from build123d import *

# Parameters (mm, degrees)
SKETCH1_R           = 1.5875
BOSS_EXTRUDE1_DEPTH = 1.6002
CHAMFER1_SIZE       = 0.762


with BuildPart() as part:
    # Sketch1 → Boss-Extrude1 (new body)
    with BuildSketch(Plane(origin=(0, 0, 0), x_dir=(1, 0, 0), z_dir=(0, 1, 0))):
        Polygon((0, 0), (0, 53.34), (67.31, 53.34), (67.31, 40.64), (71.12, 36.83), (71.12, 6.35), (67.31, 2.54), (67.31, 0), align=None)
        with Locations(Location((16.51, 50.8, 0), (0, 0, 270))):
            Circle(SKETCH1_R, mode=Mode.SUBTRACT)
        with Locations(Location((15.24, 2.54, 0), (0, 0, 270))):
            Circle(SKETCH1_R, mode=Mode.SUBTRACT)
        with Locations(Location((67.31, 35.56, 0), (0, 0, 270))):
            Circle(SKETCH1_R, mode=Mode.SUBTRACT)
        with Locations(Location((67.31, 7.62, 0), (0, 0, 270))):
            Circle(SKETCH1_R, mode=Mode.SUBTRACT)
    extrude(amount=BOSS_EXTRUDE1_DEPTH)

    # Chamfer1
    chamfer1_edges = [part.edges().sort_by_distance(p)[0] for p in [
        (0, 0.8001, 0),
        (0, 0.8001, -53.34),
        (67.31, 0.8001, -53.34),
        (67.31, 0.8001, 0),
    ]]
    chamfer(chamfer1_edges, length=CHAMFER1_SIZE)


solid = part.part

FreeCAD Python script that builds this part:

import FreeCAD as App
import Part
import Sketcher
from FreeCAD import Vector
Q = App.Units.Quantity


def edges_at(feature, points):
    """Names of the edges that pass closest to the given points."""
    edges = feature.Shape.Edges
    near = lambda p: min(range(len(edges)), key=lambda i: edges[i].distToShape(Part.Vertex(*p))[0])
    return sorted({f"Edge{near(p) + 1}" for p in points})


def add_polygon(sketch, points):
    """Adds a closed chain of lines whose ends are joined by coincident constraints."""
    first, n = sketch.GeometryCount, len(points)
    for a, b in zip(points, points[1:] + points[:1]):
        sketch.addGeometry(Part.LineSegment(App.Vector(*a, 0), App.Vector(*b, 0)), False)
    for i in range(n):
        sketch.addConstraint(Sketcher.Constraint("Coincident", first + i, 2, first + (i + 1) % n, 1))

doc = App.newDocument("Part")
params = doc.addObject("Spreadsheet::Sheet", "Params")
for row, (alias, value) in enumerate([
    ("sketch1_diameter", "0.125 in"),
    ("sketch1_height", "2.1 in"),
    ("sketch1_height2", "0.1 in"),
    ("sketch1_height3", "1.2 in"),
    ("sketch1_height4", "0.5 in"),
    ("pad1_length", "0.063 in"),
    ("chamfer_size", "0.03 in"),
], start=1):
    params.set(f"A{row}", alias)
    params.set(f"B{row}", "=" + value)
    params.setAlias(f"B{row}", alias)

body = doc.addObject("PartDesign::Body", "Body")

# Sketch on XZ plane
sketch1 = doc.addObject("Sketcher::SketchObject", "Sketch")
body.addObject(sketch1)
sketch1.AttachmentSupport = (doc.XZ_Plane, [""])
sketch1.MapMode = "FlatFace"
add_polygon(sketch1, [(0, -53.34), (0, 0), (67.31, 0), (67.31, -2.54), (71.12, -6.35), (71.12, -36.83), (67.31, -40.64), (67.31, -53.34)])  # lines 0-7
sketch1.addGeometry(Part.Circle(Vector(67.31, -7.62, 0), Vector(0, 0, 1), 1.5875), False)  # 8
sketch1.addGeometry(Part.Circle(Vector(15.24, -2.54, 0), Vector(0, 0, 1), 1.5875), False)  # 9
sketch1.addGeometry(Part.Circle(Vector(67.31, -35.56, 0), Vector(0, 0, 1), 1.5875), False)  # 10
sketch1.addGeometry(Part.Circle(Vector(16.51, -50.8, 0), Vector(0, 0, 1), 1.5875), False)  # 11
sketch1.addConstraint([
    Sketcher.Constraint("Vertical", 0),
    Sketcher.Constraint("Horizontal", 1),
    Sketcher.Constraint("Vertical", 2),
    Sketcher.Constraint("Vertical", 4),
    Sketcher.Constraint("Vertical", 6),
    Sketcher.Constraint("Horizontal", 7),
    Sketcher.Constraint("Coincident", 0, 2, -1, 1),
    Sketcher.Constraint("Equal", 8, 9),
    Sketcher.Constraint("Equal", 9, 10),
    Sketcher.Constraint("Equal", 10, 11),
    Sketcher.Constraint("Perpendicular", 3, 5),
    Sketcher.Constraint("Horizontal", 9, 3, 2, 2),
    Sketcher.Constraint("Vertical", 8, 3, 10, 3),
    Sketcher.Constraint("Vertical", 10, 3, 1, 2),
    Sketcher.Constraint("Vertical", 2, 2, 5, 2),
    Sketcher.Constraint("Equal", 3, 5),
    Sketcher.Constraint("Diameter", 8, Q("0.125 in")),
    Sketcher.Constraint("DistanceY", 0, 1, 0, 2, Q("2.1 in")),
    Sketcher.Constraint("DistanceY", 2, 2, 2, 1, Q("0.1 in")),
    Sketcher.Constraint("DistanceY", 4, 2, 4, 1, Q("1.2 in")),
    Sketcher.Constraint("DistanceY", 6, 2, 6, 1, Q("0.5 in")),
    Sketcher.Constraint("DistanceY", 11, 3, -1, 1, Q("2 in")),
    Sketcher.Constraint("DistanceX", 11, 3, 10, 3, Q("2 in")),
    Sketcher.Constraint("DistanceX", 1, 1, 1, 2, Q("2.65 in")),
    Sketcher.Constraint("DistanceY", 8, 3, -1, 1, Q("0.3 in")),
    Sketcher.Constraint("DistanceX", -1, 1, 9, 3, Q("0.6 in")),
    Sketcher.Constraint("DistanceY", 10, 3, -1, 1, Q("1.4 in")),
])
sketch1.setExpression("Constraints[24]", "Params.sketch1_diameter")
sketch1.setExpression("Constraints[25]", "Params.sketch1_height")
sketch1.setExpression("Constraints[26]", "Params.sketch1_height2")
sketch1.setExpression("Constraints[27]", "Params.sketch1_height3")
sketch1.setExpression("Constraints[28]", "Params.sketch1_height4")
pad1 = doc.addObject("PartDesign::Pad", "Pad")
body.addObject(pad1)
pad1.Profile = sketch1
pad1.setExpression("Length", "Params.pad1_length")
pad1.Reversed = True
doc.recompute()

chamfer = doc.addObject("PartDesign::Chamfer", "Chamfer")
body.addObject(chamfer)
chamfer.Base = (pad1, edges_at(pad1, [
    (0, 0.8, 0),
    (0, 0.8, -53.34),
    (67.31, 0.8, -53.34),
    (67.31, 0.8, 0),
]))
chamfer.setExpression("Size", "Params.chamfer_size")

doc.recompute()
